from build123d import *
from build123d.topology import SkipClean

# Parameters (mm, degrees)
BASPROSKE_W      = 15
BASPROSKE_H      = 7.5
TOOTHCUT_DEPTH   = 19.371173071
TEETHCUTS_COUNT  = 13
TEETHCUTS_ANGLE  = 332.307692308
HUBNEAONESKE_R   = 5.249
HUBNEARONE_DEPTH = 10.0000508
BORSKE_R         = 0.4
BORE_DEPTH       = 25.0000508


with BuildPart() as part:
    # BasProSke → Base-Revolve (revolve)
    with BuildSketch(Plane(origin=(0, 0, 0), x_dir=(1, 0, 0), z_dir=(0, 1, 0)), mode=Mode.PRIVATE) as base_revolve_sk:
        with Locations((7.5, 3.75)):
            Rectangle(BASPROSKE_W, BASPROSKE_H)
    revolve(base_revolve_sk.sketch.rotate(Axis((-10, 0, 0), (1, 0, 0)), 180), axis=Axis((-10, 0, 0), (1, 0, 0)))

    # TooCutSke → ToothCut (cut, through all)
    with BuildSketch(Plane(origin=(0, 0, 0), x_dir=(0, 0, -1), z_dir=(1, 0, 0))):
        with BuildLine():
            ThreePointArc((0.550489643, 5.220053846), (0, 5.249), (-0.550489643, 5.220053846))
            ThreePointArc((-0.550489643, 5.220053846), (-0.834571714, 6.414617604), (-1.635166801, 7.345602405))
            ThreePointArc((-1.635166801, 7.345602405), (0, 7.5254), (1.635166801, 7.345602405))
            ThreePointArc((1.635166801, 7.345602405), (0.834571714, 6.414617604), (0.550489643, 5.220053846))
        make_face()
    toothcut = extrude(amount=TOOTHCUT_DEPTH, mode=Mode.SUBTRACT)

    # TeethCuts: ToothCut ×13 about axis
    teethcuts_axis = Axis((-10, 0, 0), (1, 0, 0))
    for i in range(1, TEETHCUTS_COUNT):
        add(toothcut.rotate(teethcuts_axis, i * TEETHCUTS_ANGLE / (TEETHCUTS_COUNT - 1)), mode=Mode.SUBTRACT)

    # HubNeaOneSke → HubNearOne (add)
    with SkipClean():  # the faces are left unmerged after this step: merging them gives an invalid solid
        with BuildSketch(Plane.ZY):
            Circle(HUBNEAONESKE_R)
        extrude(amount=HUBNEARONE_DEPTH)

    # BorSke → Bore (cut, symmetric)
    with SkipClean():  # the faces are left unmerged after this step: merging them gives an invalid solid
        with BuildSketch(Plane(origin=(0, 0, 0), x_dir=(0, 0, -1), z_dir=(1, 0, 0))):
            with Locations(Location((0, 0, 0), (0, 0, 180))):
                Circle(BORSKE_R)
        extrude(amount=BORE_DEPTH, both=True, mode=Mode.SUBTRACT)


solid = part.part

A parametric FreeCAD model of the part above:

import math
import FreeCAD as App
import Part
import Sketcher
from FreeCAD import Vector
Q = App.Units.Quantity

doc = App.newDocument("Part")
body = doc.addObject("PartDesign::Body", "Body")

# Sketch on XZ plane
sketch1 = body.newObject("Sketcher::SketchObject", "Sketch")
sketch1.AttachmentSupport = (doc.getObject("XZ_Plane"), [""])
sketch1.MapMode = "FlatFace"
sketch1.addGeometry(Part.LineSegment(Vector(0, -8, 0), Vector(0, 0, 0)), False)
sketch1.addGeometry(Part.LineSegment(Vector(0, 0, 0), Vector(15, 0, 0)), False)
sketch1.addGeometry(Part.LineSegment(Vector(15, 0, 0), Vector(15, -8, 0)), False)
sketch1.addGeometry(Part.LineSegment(Vector(15, -8, 0), Vector(0, -8, 0)), False)
sketch1.addConstraint(Sketcher.Constraint("Coincident", 0, 2, 1, 1))
sketch1.addConstraint(Sketcher.Constraint("Coincident", 1, 2, 2, 1))
sketch1.addConstraint(Sketcher.Constraint("Coincident", 2, 2, 3, 1))
sketch1.addConstraint(Sketcher.Constraint("Coincident", 3, 2, 0, 1))
sketch1.addConstraint(Sketcher.Constraint("Vertical", 0))
sketch1.addConstraint(Sketcher.Constraint("Horizontal", 1))
sketch1.addConstraint(Sketcher.Constraint("Vertical", 2))
sketch1.addConstraint(Sketcher.Constraint("Horizontal", 3))
sketch1.addConstraint(Sketcher.Constraint("Coincident", 0, 2, -1, 1))
sketch1.addConstraint(Sketcher.Constraint("DistanceX", 1, 1, 1, 2, Q("15 mm")))
sketch1.addConstraint(Sketcher.Constraint("DistanceY", 0, 1, 0, 2, Q("7.5 mm")))
revolution = body.newObject("PartDesign::Revolution", "Revolution")
revolution.Profile = sketch1
revolution.ReferenceAxis = (sketch1, ["H_Axis"])
revolution.Angle = 360

# Sketch on YZ plane
sketch2 = body.newObject("Sketcher::SketchObject", "Sketch001")
sketch2.AttachmentSupport = (doc.getObject("YZ_Plane"), [""])
sketch2.MapMode = "FlatFace"
sketch2.addGeometry(Part.ArcOfCircle(Part.Circle(Vector(0, 0, 0), Vector(0, 0, 1), 5.2), math.radians(-6.02), math.radians(6.02)), False)
sketch2.addGeometry(Part.ArcOfCircle(Part.Circle(Vector(5.2, -3.2, 0), Vector(0, 0, 1), 2.6), math.radians(36), math.radians(90)), False)
sketch2.addGeometry(Part.ArcOfCircle(Part.Circle(Vector(0, 0, 0), Vector(0, 0, 1), 7.5), math.radians(-13), math.radians(13)), False)
sketch2.addGeometry(Part.ArcOfCircle(Part.Circle(Vector(5.2, 3.2, 0), Vector(0, 0, 1), 2.6), math.radians(-90), math.radians(-36)), False)
sketch2.addConstraint(Sketcher.Constraint("Coincident", 0, 1, 1, 2))
sketch2.addConstraint(Sketcher.Constraint("Coincident", 1, 1, 2, 1))
sketch2.addConstraint(Sketcher.Constraint("Coincident", 2, 2, 3, 2))
sketch2.addConstraint(Sketcher.Constraint("Coincident", 3, 1, 0, 2))
sketch2.addConstraint(Sketcher.Constraint("Coincident", 0, 3, -1, 1))
sketch2.addConstraint(Sketcher.Constraint("Coincident", 2, 3, -1, 1))
sketch2.addConstraint(Sketcher.Constraint("Equal", 1, 3))
sketch2.addConstraint(Sketcher.Constraint("Symmetric", 1, 3, 3, 3, -1))
sketch2.addConstraint(Sketcher.Constraint("Radius", 1, Q("2.6 mm")))
sketch2.addConstraint(Sketcher.Constraint("Radius", 0, Q("5.249 mm")))
sketch2.addConstraint(Sketcher.Constraint("Radius", 2, Q("7.5254 mm")))
sketch2.addConstraint(Sketcher.Constraint("DistanceX", -1, 1, 1, 3, Q("5.23281 mm")))
sketch2.addConstraint(Sketcher.Constraint("DistanceY", 1, 3, -1, 1, Q("3.150458 mm")))
pocket1 = body.newObject("PartDesign::Pocket", "Pocket")
pocket1.Profile = sketch2
pocket1.Type = "ThroughAll"
pocket1.Reversed = True
doc.recompute()

polarpattern = body.newObject("PartDesign::PolarPattern", "PolarPattern")
polarpattern.Originals = [pocket1]
polarpattern.Axis = (doc.getObject("X_Axis"), [""])
polarpattern.Angle = 360
polarpattern.Occurrences = 13
body.Tip = polarpattern

# Sketch on YZ plane
sketch3 = body.newObject("Sketcher::SketchObject", "Sketch002")
sketch3.AttachmentSupport = (doc.getObject("YZ_Plane"), [""])
sketch3.MapMode = "FlatFace"
sketch3.addGeometry(Part.Circle(Vector(0, 0, 0), Vector(0, 0, 1), 5), False)
sketch3.addConstraint(Sketcher.Constraint("Coincident", 0, 3, -1, 1))
sketch3.addConstraint(Sketcher.Constraint("Diameter", 0, Q("10.498 mm")))
pad1 = body.newObject("PartDesign::Pad", "Pad")
pad1.Profile = sketch3
pad1.Length = 10.000051
pad1.Reversed = True

# Sketch on YZ plane
sketch4 = body.newObject("Sketcher::SketchObject", "Sketch003")
sketch4.AttachmentSupport = (doc.getObject("YZ_Plane"), [""])
sketch4.MapMode = "FlatFace"
sketch4.addGeometry(Part.Circle(Vector(0, 0, 0), Vector(0, 0, 1), 0.4), False)
sketch4.addConstraint(Sketcher.Constraint("Coincident", 0, 3, -1, 1))
sketch4.addConstraint(Sketcher.Constraint("Diameter", 0, Q("0.8 mm")))
pocket2 = body.newObject("PartDesign::Pocket", "Pocket001")
pocket2.Profile = sketch4
pocket2.Length = 50.000102
pocket2.Midplane = True

doc.recompute()
